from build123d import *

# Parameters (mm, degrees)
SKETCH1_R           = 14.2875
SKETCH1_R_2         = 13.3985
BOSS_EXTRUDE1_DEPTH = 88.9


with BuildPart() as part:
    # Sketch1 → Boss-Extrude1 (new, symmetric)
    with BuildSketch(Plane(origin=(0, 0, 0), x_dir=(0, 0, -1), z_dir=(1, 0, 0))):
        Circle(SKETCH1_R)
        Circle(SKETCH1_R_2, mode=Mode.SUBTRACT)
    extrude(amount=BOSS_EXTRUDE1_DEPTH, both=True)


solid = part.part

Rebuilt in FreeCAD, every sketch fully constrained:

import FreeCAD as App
import Part
import Sketcher
from FreeCAD import Vector
Q = App.Units.Quantity

doc = App.newDocument("Part")
body = doc.addObject("PartDesign::Body", "Body")

sketch1 = doc.addObject("Sketcher::SketchObject", "Sketch")
body.addObject(sketch1)
sketch1.AttachmentSupport = (doc.YZ_Plane, [""])
sketch1.MapMode = "FlatFace"
sketch1.addGeometry(Part.Circle(Vector(0, 0, 0), Vector(0, 0, 1), 14.2875), False)
sketch1.addGeometry(Part.Circle(Vector(0, 0, 0), Vector(0, 0, 1), 13.3985), False)
sketch1.addConstraint(Sketcher.Constraint("Coincident", 0, 3, -1, 1))
sketch1.addConstraint(Sketcher.Constraint("Coincident", 1, 3, -1, 1))
sketch1.addConstraint(Sketcher.Constraint("Diameter", 0, Q("1.125 in")))
sketch1.addConstraint(Sketcher.Constraint("Diameter", 1, Q("1.055 in")))
pad1 = doc.addObject("PartDesign::Pad", "Pad")
body.addObject(pad1)
pad1.Profile = sketch1
pad1.Length = Q("7 in")
pad1.Midplane = True

doc.recompute()
